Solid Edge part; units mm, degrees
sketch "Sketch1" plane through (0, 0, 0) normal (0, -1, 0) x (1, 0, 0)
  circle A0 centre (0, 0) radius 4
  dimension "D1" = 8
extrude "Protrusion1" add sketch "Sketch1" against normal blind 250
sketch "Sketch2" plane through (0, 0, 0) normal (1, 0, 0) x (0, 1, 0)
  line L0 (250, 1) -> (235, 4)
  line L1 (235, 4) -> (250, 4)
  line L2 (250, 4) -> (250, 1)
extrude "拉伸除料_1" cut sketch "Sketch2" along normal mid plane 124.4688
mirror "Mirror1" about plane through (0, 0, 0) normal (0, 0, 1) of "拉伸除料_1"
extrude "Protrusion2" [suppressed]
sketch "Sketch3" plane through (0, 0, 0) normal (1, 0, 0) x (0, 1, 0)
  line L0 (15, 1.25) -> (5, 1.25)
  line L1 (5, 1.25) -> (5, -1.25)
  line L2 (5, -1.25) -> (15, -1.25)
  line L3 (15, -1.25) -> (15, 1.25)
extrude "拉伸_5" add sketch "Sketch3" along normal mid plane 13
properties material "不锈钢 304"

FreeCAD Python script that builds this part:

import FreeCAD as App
import Part
import Sketcher


def add_polygon(sketch, points):
    """Adds a closed chain of lines whose ends are joined by coincident constraints."""
    first, n = sketch.GeometryCount, len(points)
    for a, b in zip(points, points[1:] + points[:1]):
        sketch.addGeometry(Part.LineSegment(App.Vector(*a, 0), App.Vector(*b, 0)), False)
    for i in range(n):
        sketch.addConstraint(Sketcher.Constraint("Coincident", first + i, 2, first + (i + 1) % n, 1))

doc = App.newDocument("Part")
body = doc.addObject("PartDesign::Body", "Body")

# Sketch on XZ plane
sketch1 = body.newObject("Sketcher::SketchObject", "Sketch")
sketch1.AttachmentSupport = (doc.getObject("XZ_Plane"), [""])
sketch1.MapMode = "FlatFace"
sketch1.addGeometry(Part.Circle(App.Vector(0, 0, 0), App.Vector(0, 0, 1), 4), False)
sketch1.addConstraint(Sketcher.Constraint("Coincident", 0, 3, -1, 1))
sketch1.addConstraint(Sketcher.Constraint("Diameter", 0, 8.0))
pad1 = body.newObject("PartDesign::Pad", "Pad")
pad1.Profile = sketch1
pad1.Length = 250
pad1.Reversed = True

# Sketch on YZ plane
sketch2 = body.newObject("Sketcher::SketchObject", "Sketch001")
sketch2.AttachmentSupport = (doc.getObject("YZ_Plane"), [""])
sketch2.MapMode = "FlatFace"
add_polygon(sketch2, [(235, 4), (250, 1), (250, 4)])  # lines 0-2
sketch2.addConstraint(Sketcher.Constraint("Vertical", 1))
sketch2.addConstraint(Sketcher.Constraint("Horizontal", 2))
sketch2.addConstraint(Sketcher.Constraint("DistanceX", 2, 2, 2, 1, 15.0))
sketch2.addConstraint(Sketcher.Constraint("DistanceY", 1, 1, 1, 2, 3.0))
sketch2.addConstraint(Sketcher.Constraint("DistanceX", -1, 1, 0, 2, 250.0))
sketch2.addConstraint(Sketcher.Constraint("DistanceY", -1, 1, 0, 2, 1.0))
pocket1 = body.newObject("PartDesign::Pocket", "Pocket")
pocket1.Profile = sketch2
pocket1.Length = 124.4688
pocket1.Midplane = True
doc.recompute()

mirrored = body.newObject("PartDesign::Mirrored", "Mirrored")
mirrored.Originals = [pocket1]
mirrored.MirrorPlane = (doc.getObject("XY_Plane"), [""])
body.Tip = mirrored

# Sketch on YZ plane
sketch3 = body.newObject("Sketcher::SketchObject", "Sketch002")
sketch3.AttachmentSupport = (doc.getObject("YZ_Plane"), [""])
sketch3.MapMode = "FlatFace"
add_polygon(sketch3, [(15, -1.25), (15, 1.25), (5, 1.25), (5, -1.25)])  # lines 0-3
sketch3.addConstraint(Sketcher.Constraint("Vertical", 0))
sketch3.addConstraint(Sketcher.Constraint("Horizontal", 1))
sketch3.addConstraint(Sketcher.Constraint("Vertical", 2))
sketch3.addConstraint(Sketcher.Constraint("Horizontal", 3))
sketch3.addConstraint(Sketcher.Constraint("DistanceX", 1, 2, 1, 1, 10.0))
sketch3.addConstraint(Sketcher.Constraint("DistanceY", 0, 1, 0, 2, 2.5))
sketch3.addConstraint(Sketcher.Constraint("DistanceX", -1, 1, 0, 2, 15.0))
sketch3.addConstraint(Sketcher.Constraint("DistanceY", -1, 1, 0, 2, 1.25))
pad2 = body.newObject("PartDesign::Pad", "Pad001")
pad2.Profile = sketch3
pad2.Length = 13
pad2.Midplane = True

doc.recompute()
